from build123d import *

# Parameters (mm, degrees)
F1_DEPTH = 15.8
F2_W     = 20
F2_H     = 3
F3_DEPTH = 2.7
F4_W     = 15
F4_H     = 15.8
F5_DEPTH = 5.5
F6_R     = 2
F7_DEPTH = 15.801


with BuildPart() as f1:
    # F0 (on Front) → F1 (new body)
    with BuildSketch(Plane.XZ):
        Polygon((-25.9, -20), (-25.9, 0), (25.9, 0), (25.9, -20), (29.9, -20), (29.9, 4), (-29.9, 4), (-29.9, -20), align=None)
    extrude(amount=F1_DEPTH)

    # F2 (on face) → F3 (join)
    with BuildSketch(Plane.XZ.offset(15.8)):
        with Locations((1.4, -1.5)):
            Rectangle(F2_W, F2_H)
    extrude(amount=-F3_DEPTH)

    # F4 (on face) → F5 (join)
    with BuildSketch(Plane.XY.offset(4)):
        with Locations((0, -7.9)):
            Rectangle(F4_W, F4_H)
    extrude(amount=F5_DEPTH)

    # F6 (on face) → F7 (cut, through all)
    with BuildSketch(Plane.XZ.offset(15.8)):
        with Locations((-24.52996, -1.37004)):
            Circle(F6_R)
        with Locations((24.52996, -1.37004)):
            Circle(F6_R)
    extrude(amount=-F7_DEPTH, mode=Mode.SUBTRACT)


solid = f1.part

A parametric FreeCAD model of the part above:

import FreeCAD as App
import Part
import Sketcher

V = App.Vector
Q = App.Units.Quantity


def add_polygon(sketch, points):
    """Adds a closed chain of lines whose ends are joined by coincident constraints."""
    first, n = sketch.GeometryCount, len(points)
    for a, b in zip(points, points[1:] + points[:1]):
        sketch.addGeometry(Part.LineSegment(App.Vector(*a, 0), App.Vector(*b, 0)), False)
    for i in range(n):
        sketch.addConstraint(Sketcher.Constraint("Coincident", first + i, 2, first + (i + 1) % n, 1))

doc = App.newDocument("Part")
body = doc.addObject("PartDesign::Body", "Body")

sketch1 = body.newObject("Sketcher::SketchObject", "Sketch")
sketch1.AttachmentSupport = (doc.getObject("XZ_Plane"), [""])
sketch1.MapMode = "FlatFace"
add_polygon(sketch1, [(-25.9, -20), (-25.9, 0), (25.9, 0), (25.9, -20), (29.9, -20), (29.9, 4), (-29.9, 4), (-29.9, -20)])
sketch1.addConstraint([
    Sketcher.Constraint("Vertical", 0),
    Sketcher.Constraint("Horizontal", 1),
    Sketcher.Constraint("Vertical", 2),
    Sketcher.Constraint("Horizontal", 3),
    Sketcher.Constraint("Vertical", 4),
    Sketcher.Constraint("Horizontal", 5),
    Sketcher.Constraint("Vertical", 6),
    Sketcher.Constraint("Horizontal", 7),
    Sketcher.Constraint("Symmetric", 0, 2, 1, 2, -1, 1),
    Sketcher.Constraint("Symmetric", 3, 2, 6, 2, -2),
    Sketcher.Constraint("DistanceX", 3, 1, 3, 2, Q("4 mm")),
    Sketcher.Constraint("DistanceY", 0, 1, 0, 2, Q("20 mm")),
    Sketcher.Constraint("DistanceY", 4, 1, 4, 2, Q("24 mm")),
    Sketcher.Constraint("DistanceX", 1, 1, 1, 2, Q("51.8 mm")),
])
pad1 = body.newObject("PartDesign::Pad", "Pad")
pad1.Profile = sketch1
pad1.Length = 15.8

sketch2 = body.newObject("Sketcher::SketchObject", "Sketch001")
sketch2.AttachmentSupport = (doc.getObject("XZ_Plane"), [""])
sketch2.MapMode = "FlatFace"
sketch2.AttachmentOffset = App.Placement(V(0, 0, 15.8), App.Rotation())
add_polygon(sketch2, [(-8.6, 0), (-8.6, -3), (11.4, -3), (11.4, 0)])
sketch2.addConstraint([
    Sketcher.Constraint("Vertical", 0),
    Sketcher.Constraint("Horizontal", 1),
    Sketcher.Constraint("Vertical", 2),
    Sketcher.Constraint("Horizontal", 3),
    Sketcher.Constraint("PointOnObject", 2, 2, -1),
    Sketcher.Constraint("DistanceX", 1, 1, 1, 2, Q("20 mm")),
    Sketcher.Constraint("DistanceY", 0, 2, 0, 1, Q("3 mm")),
    Sketcher.Constraint("DistanceX", 0, 2, -1, 1, Q("8.6 mm")),
])
pad2 = body.newObject("PartDesign::Pad", "Pad001")
pad2.Profile = sketch2
pad2.Length = 2.7
pad2.Reversed = True

sketch3 = body.newObject("Sketcher::SketchObject", "Sketch002")
sketch3.AttachmentSupport = (doc.getObject("XY_Plane"), [""])
sketch3.MapMode = "FlatFace"
sketch3.AttachmentOffset = App.Placement(V(0, 0, 4), App.Rotation())
add_polygon(sketch3, [(-7.5, 0), (-7.5, -15.8), (7.5, -15.8), (7.5, 0)])
sketch3.addConstraint([
    Sketcher.Constraint("Vertical", 0),
    Sketcher.Constraint("Horizontal", 1),
    Sketcher.Constraint("Vertical", 2),
    Sketcher.Constraint("Horizontal", 3),
    Sketcher.Constraint("Symmetric", 2, 2, 3, 2, -1, 1),
    Sketcher.Constraint("DistanceX", 1, 1, 1, 2, Q("15 mm")),
    Sketcher.Constraint("DistanceY", 0, 2, 0, 1, Q("15.8 mm")),
])
pad3 = body.newObject("PartDesign::Pad", "Pad002")
pad3.Profile = sketch3
pad3.Length = 5.5

sketch4 = body.newObject("Sketcher::SketchObject", "Sketch003")
sketch4.AttachmentSupport = (doc.getObject("XZ_Plane"), [""])
sketch4.MapMode = "FlatFace"
sketch4.AttachmentOffset = App.Placement(V(0, 0, 15.8), App.Rotation())
sketch4.addGeometry([
    Part.Circle(V(-24.52996, -1.37004, 0), V(0, 0, 1), 2),
    Part.Circle(V(24.52996, -1.37004, 0), V(0, 0, 1), 2),
], False)
sketch4.addConstraint([
    Sketcher.Constraint("Equal", 0, 1),
    Sketcher.Constraint("Symmetric", 0, 3, 1, 3, -2),
    Sketcher.Constraint("Diameter", 0, Q("4 mm")),
    Sketcher.Constraint("DistanceX", 0, 3, -1, 1, Q("24.52996 mm")),
    Sketcher.Constraint("DistanceY", 0, 3, -1, 1, Q("1.37004 mm")),
])
pocket1 = body.newObject("PartDesign::Pocket", "Pocket")
pocket1.Profile = sketch4
pocket1.Type = "ThroughAll"

doc.recompute()
